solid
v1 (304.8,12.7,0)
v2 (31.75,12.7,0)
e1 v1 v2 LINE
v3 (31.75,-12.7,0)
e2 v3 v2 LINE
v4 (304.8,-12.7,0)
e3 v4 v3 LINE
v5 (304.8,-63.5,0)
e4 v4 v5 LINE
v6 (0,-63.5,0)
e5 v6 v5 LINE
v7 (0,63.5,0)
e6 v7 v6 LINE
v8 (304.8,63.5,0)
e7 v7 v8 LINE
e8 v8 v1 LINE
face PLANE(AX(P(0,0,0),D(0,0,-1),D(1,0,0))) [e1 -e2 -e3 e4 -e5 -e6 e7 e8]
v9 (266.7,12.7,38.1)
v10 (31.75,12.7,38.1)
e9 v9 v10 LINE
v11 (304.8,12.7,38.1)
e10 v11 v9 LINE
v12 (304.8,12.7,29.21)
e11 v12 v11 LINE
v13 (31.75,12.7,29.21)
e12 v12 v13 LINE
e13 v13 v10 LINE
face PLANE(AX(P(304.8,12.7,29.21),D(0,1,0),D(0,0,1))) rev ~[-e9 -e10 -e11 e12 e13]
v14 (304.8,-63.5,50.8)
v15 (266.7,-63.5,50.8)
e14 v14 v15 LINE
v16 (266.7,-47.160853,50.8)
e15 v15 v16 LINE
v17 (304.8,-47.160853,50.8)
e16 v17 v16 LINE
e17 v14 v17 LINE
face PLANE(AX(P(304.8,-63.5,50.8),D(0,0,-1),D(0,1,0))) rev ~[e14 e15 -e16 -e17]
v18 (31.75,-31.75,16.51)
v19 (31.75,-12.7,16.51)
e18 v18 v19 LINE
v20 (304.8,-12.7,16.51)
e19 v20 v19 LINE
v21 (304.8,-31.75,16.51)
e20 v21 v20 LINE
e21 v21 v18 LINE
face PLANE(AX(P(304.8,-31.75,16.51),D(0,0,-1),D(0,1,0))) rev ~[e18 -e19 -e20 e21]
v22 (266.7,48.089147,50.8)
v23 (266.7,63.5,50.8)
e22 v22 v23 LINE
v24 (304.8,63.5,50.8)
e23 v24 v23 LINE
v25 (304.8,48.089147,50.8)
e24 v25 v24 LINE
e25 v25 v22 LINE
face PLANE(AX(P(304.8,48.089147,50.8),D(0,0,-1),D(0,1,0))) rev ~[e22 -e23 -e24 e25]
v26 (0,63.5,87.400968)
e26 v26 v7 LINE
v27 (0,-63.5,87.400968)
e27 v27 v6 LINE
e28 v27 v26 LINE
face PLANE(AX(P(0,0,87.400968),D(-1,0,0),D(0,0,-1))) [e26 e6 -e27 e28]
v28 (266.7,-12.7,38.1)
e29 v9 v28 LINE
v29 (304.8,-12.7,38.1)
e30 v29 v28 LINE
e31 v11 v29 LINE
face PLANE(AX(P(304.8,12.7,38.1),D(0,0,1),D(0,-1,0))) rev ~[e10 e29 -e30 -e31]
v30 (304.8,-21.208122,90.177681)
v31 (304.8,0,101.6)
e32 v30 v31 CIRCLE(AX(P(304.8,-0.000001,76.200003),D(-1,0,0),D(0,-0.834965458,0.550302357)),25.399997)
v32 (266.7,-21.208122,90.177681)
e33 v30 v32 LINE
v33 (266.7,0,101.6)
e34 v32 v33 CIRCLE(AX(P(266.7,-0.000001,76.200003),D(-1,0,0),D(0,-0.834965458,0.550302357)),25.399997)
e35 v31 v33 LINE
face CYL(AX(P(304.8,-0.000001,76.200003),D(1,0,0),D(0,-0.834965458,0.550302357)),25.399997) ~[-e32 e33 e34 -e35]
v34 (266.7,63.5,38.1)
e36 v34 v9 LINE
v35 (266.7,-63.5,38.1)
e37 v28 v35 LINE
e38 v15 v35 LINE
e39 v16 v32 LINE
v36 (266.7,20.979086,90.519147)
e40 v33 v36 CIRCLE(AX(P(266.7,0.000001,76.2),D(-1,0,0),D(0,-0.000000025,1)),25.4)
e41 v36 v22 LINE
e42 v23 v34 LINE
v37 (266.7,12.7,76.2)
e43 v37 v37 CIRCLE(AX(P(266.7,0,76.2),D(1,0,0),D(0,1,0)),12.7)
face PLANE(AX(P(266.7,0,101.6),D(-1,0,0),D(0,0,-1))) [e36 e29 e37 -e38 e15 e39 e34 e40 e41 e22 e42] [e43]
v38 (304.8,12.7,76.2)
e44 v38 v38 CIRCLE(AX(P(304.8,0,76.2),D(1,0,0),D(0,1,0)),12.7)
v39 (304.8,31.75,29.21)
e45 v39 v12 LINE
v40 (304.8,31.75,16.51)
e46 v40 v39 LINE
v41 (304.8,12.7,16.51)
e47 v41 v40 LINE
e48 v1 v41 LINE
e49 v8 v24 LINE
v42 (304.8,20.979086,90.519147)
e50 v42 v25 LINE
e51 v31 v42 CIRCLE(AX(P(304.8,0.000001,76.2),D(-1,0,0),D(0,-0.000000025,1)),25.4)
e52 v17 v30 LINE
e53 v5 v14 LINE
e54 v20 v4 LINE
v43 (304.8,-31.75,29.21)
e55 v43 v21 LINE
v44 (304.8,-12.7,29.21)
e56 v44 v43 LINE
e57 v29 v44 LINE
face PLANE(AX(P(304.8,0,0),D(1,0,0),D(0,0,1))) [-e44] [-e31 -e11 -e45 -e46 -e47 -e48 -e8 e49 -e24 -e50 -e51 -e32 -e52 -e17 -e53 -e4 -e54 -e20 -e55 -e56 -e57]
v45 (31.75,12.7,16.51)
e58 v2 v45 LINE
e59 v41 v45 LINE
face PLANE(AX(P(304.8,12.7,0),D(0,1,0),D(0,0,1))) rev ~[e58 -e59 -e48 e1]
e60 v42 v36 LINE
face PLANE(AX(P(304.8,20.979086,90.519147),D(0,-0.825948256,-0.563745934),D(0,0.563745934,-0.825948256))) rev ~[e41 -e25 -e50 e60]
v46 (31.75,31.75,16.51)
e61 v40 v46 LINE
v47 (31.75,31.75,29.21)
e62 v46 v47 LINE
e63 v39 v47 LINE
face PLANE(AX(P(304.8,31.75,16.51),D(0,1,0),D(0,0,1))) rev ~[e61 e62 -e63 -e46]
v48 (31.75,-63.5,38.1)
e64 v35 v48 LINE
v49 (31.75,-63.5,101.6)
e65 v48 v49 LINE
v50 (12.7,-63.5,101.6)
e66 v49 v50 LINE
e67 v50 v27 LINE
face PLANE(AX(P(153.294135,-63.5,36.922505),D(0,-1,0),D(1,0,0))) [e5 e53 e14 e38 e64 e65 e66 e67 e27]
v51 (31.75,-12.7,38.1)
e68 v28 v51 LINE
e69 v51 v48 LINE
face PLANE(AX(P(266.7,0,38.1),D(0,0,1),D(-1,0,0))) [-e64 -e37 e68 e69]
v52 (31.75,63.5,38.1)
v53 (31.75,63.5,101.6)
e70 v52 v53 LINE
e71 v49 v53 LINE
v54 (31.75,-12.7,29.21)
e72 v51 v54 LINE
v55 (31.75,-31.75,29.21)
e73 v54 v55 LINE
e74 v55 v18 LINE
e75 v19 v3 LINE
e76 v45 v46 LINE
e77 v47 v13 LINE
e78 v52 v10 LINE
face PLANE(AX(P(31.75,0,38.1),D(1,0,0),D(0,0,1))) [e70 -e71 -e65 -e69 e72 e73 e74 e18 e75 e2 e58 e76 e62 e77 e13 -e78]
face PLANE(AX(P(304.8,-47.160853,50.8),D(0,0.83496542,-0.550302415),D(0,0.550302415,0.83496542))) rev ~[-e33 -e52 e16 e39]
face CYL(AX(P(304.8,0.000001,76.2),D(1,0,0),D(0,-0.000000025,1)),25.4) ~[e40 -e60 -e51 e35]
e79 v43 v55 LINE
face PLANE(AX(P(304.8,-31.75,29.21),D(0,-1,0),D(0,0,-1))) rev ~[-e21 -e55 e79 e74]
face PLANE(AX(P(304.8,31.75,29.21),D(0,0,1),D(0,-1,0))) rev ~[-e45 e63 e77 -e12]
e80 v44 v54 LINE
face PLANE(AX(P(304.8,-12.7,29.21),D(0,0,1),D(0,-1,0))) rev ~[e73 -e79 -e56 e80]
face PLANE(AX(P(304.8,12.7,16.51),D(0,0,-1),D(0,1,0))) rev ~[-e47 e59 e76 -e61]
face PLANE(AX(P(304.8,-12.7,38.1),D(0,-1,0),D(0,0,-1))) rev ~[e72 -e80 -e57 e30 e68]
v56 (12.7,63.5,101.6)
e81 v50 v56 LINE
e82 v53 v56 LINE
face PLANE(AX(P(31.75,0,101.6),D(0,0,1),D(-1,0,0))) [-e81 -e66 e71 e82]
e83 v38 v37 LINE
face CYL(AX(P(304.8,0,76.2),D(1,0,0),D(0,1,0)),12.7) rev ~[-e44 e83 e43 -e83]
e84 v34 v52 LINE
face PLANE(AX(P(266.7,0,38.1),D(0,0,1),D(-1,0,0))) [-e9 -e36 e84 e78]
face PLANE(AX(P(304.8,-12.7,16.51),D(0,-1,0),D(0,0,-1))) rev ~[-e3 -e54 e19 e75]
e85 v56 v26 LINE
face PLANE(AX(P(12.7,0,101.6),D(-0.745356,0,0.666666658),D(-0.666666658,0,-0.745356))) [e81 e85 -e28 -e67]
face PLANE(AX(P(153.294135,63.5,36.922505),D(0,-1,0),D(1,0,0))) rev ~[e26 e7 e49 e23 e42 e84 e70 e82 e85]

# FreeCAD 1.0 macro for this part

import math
import FreeCAD as App
import Part
import Sketcher
Q = App.Units.Quantity


def add_polygon(sketch, points):
    """Adds a closed chain of lines whose ends are joined by coincident constraints."""
    first, n = sketch.GeometryCount, len(points)
    for a, b in zip(points, points[1:] + points[:1]):
        sketch.addGeometry(Part.LineSegment(App.Vector(*a, 0), App.Vector(*b, 0)), False)
    for i in range(n):
        sketch.addConstraint(Sketcher.Constraint("Coincident", first + i, 2, first + (i + 1) % n, 1))

doc = App.newDocument("Part")
body = doc.addObject("PartDesign::Body", "Body")

# Sketch on XZ plane
sketch1 = body.newObject("Sketcher::SketchObject", "Sketch")
sketch1.AttachmentSupport = (doc.getObject("XZ_Plane"), [""])
sketch1.MapMode = "FlatFace"
add_polygon(sketch1, [(0, 87.400968), (0, 0), (304.8, 0), (304.8, 101.6), (266.7, 101.6), (266.7, 38.1), (31.75, 38.1), (31.75, 101.6), (12.7, 101.6)])  # lines 0-8
sketch1.addConstraint([
    Sketcher.Constraint("Vertical", 0),
    Sketcher.Constraint("Horizontal", 1),
    Sketcher.Constraint("Vertical", 2),
    Sketcher.Constraint("Horizontal", 3),
    Sketcher.Constraint("Vertical", 4),
    Sketcher.Constraint("Horizontal", 5),
    Sketcher.Constraint("Vertical", 6),
    Sketcher.Constraint("Horizontal", 7),
    Sketcher.Constraint("Coincident", 0, 2, -1, 1),
    Sketcher.Constraint("Horizontal", 3, 2, 6, 2),
    Sketcher.Constraint("DistanceX", 1, 1, 1, 2, Q("12 in")),
    Sketcher.Constraint("DistanceY", 2, 1, 2, 2, Q("4 in")),
    Sketcher.Constraint("DistanceX", 3, 2, 3, 1, Q("1.5 in")),
    Sketcher.Constraint("DistanceY", 4, 2, 4, 1, Q("2.5 in")),
    Sketcher.Constraint("DistanceX", 7, 2, 3, 2, Q("10 in")),
    Sketcher.Constraint("DistanceX", 5, 2, 5, 1, Q("9.25 in")),
    Sketcher.Constraint("Distance", 8, Q("0.75 in")),
])
pad1 = body.newObject("PartDesign::Pad", "Pad")
pad1.Profile = sketch1
pad1.Length = Q("5 in")
pad1.Midplane = True

# Sketch on YZ plane
sketch2 = body.newObject("Sketcher::SketchObject", "Sketch001")
sketch2.AttachmentSupport = (doc.getObject("YZ_Plane"), [""])
sketch2.MapMode = "FlatFace"
sketch2.AttachmentOffset = App.Placement(App.Vector(0, 0, 12 * 25.4), App.Rotation())
sketch2.addGeometry([
    Part.LineSegment(App.Vector(-63.5, 101.6, 0), App.Vector(-63.5, 50.8, 0)),  # 0
    Part.LineSegment(App.Vector(-63.5, 50.8, 0), App.Vector(-47.160853, 50.8, 0)),  # 1
    Part.LineSegment(App.Vector(-47.160853, 50.8, 0), App.Vector(-21.208122, 90.177681, 0)),  # 2
    Part.ArcOfCircle(Part.Circle(App.Vector(-0.000001, 76.200003, 0), App.Vector(0, 0, 1), 25.399997), math.radians(89.999997), math.radians(146.612242)),  # 3
    Part.LineSegment(App.Vector(0, 101.6, 0), App.Vector(-63.5, 101.6, 0)),  # 4
    Part.LineSegment(App.Vector(63.5, 101.6, 0), App.Vector(0, 101.6, 0)),  # 5
    Part.ArcOfCircle(Part.Circle(App.Vector(0.000001, 76.2, 0), App.Vector(0, 0, 1), 25.4), math.radians(34.315252), math.radians(90.000001)),  # 6
    Part.LineSegment(App.Vector(20.979086, 90.519147, 0), App.Vector(48.089147, 50.8, 0)),  # 7
    Part.LineSegment(App.Vector(48.089147, 50.8, 0), App.Vector(63.5, 50.8, 0)),  # 8
    Part.LineSegment(App.Vector(63.5, 50.8, 0), App.Vector(63.5, 101.6, 0)),  # 9
], False)
sketch2.addConstraint([
    Sketcher.Constraint("Coincident", 0, 2, 1, 1),
    Sketcher.Constraint("Coincident", 1, 2, 2, 1),
    Sketcher.Constraint("Tangent", 2, 2, 3, 2),
    Sketcher.Constraint("Tangent", 3, 1, 4, 1),
    Sketcher.Constraint("Coincident", 4, 2, 0, 1),
    Sketcher.Constraint("Tangent", 5, 2, 6, 2),
    Sketcher.Constraint("Tangent", 6, 1, 7, 1),
    Sketcher.Constraint("Coincident", 7, 2, 8, 1),
    Sketcher.Constraint("Coincident", 8, 2, 9, 1),
    Sketcher.Constraint("Coincident", 9, 2, 5, 1),
    Sketcher.Constraint("Vertical", 0),
    Sketcher.Constraint("Horizontal", 1),
    Sketcher.Constraint("Horizontal", 4),
    Sketcher.Constraint("Horizontal", 5),
    Sketcher.Constraint("Horizontal", 8),
    Sketcher.Constraint("Vertical", 9),
    Sketcher.Constraint("Coincident", 6, 3, 3, 3),
    Sketcher.Constraint("Symmetric", 0, 2, 8, 2, -2),
    Sketcher.Constraint("PointOnObject", 3, 3, -2),
    Sketcher.Constraint("Horizontal", 4, 2, 5, 2),
    Sketcher.Constraint("Radius", 3, Q("0.9999999 in")),
    Sketcher.Constraint("DistanceY", 0, 2, 0, 1, Q("2 in")),
    Sketcher.Constraint("DistanceX", 4, 2, 4, 1, Q("2.5 in")),
    Sketcher.Constraint("DistanceY", -1, 1, 3, 3, Q("3.0000001 in")),
    Sketcher.Constraint("DistanceX", 1, 1, 1, 2, Q("16.339147 mm")),
    Sketcher.Constraint("DistanceX", 8, 1, 8, 2, Q("15.410853 mm")),
])
pocket1 = body.newObject("PartDesign::Pocket", "Pocket")
pocket1.Profile = sketch2
pocket1.Length = Q("1.5 in")

# Sketch on YZ plane
sketch3 = body.newObject("Sketcher::SketchObject", "Sketch002")
sketch3.AttachmentSupport = (doc.getObject("YZ_Plane"), [""])
sketch3.MapMode = "FlatFace"
sketch3.AttachmentOffset = App.Placement(App.Vector(0, 0, 12 * 25.4), App.Rotation())
sketch3.addGeometry(Part.Circle(App.Vector(0, 76.2, 0), App.Vector(0, 0, 1), 12.7), False)
sketch3.addConstraint([
    Sketcher.Constraint("PointOnObject", 0, 3, -2),
    Sketcher.Constraint("Diameter", 0, Q("1 in")),
    Sketcher.Constraint("DistanceY", -1, 1, 0, 3, Q("3 in")),
])
pocket2 = body.newObject("PartDesign::Pocket", "Pocket001")
pocket2.Profile = sketch3
pocket2.Length = Q("1.5 in")

# Sketch on YZ plane
sketch4 = body.newObject("Sketcher::SketchObject", "Sketch003")
sketch4.AttachmentSupport = (doc.getObject("YZ_Plane"), [""])
sketch4.MapMode = "FlatFace"
sketch4.AttachmentOffset = App.Placement(App.Vector(0, 0, 12 * 25.4), App.Rotation())
add_polygon(sketch4, [(-12.7, 16.51), (-12.7, 0), (12.7, 0), (12.7, 16.51), (31.75, 16.51), (31.75, 29.21), (12.7, 29.21), (12.7, 38.1), (-12.7, 38.1), (-12.7, 29.21), (-31.75, 29.21), (-31.75, 16.51)])  # lines 0-11
sketch4.addConstraint([
    Sketcher.Constraint("Vertical", 0),
    Sketcher.Constraint("Horizontal", 1),
    Sketcher.Constraint("Vertical", 2),
    Sketcher.Constraint("Horizontal", 3),
    Sketcher.Constraint("Vertical", 4),
    Sketcher.Constraint("Horizontal", 5),
    Sketcher.Constraint("Vertical", 6),
    Sketcher.Constraint("Horizontal", 7),
    Sketcher.Constraint("Vertical", 8),
    Sketcher.Constraint("Horizontal", 9),
    Sketcher.Constraint("Vertical", 10),
    Sketcher.Constraint("Horizontal", 11),
    Sketcher.Constraint("Symmetric", 0, 2, 1, 2, -1, 1),
    Sketcher.Constraint("Symmetric", 5, 2, 8, 2, -2),
    Sketcher.Constraint("Symmetric", 3, 2, 10, 2, -2),
    Sketcher.Constraint("Vertical", 2, 2, 5, 2),
    Sketcher.Constraint("DistanceX", 1, 1, 1, 2, Q("1 in")),
    Sketcher.Constraint("DistanceY", 4, 1, 4, 2, Q("0.5 in")),
    Sketcher.Constraint("DistanceX", 3, 1, 3, 2, Q("0.75 in")),
    Sketcher.Constraint("DistanceY", 0, 2, 0, 1, Q("0.65 in")),
    Sketcher.Constraint("DistanceY", 6, 1, 6, 2, Q("0.35 in")),
])
pocket3 = body.newObject("PartDesign::Pocket", "Pocket002")
pocket3.Profile = sketch4
pocket3.Length = Q("10.75 in")

doc.recompute()
